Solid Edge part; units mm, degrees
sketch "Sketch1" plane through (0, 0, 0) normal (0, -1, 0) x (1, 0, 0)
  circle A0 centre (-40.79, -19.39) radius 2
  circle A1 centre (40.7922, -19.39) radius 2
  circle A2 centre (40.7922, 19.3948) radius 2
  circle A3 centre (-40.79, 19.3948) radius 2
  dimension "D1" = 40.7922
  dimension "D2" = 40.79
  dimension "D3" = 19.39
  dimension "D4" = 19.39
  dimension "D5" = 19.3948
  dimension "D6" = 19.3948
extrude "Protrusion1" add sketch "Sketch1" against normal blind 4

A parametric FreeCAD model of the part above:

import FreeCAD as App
import Part
import Sketcher

V = App.Vector

doc = App.newDocument("Part")
params = doc.addObject("Spreadsheet::Sheet", "Params")
for row, (alias, value) in enumerate([
    ("sketch1_diameter", "4 mm"),
    ("pad1_length", "4 mm"),
], start=1):
    params.set(f"A{row}", alias)
    params.set(f"B{row}", "=" + value)
    params.setAlias(f"B{row}", alias)

body = doc.addObject("PartDesign::Body", "Body")
body.AllowCompound = True

# Sketch on XZ plane
sketch1 = doc.addObject("Sketcher::SketchObject", "Sketch")
body.addObject(sketch1)
sketch1.AttachmentSupport = (doc.XZ_Plane, [""])
sketch1.MapMode = "FlatFace"
sketch1.addGeometry(Part.Circle(V(-40.79, -19.39, 0), V(0, 0, 1), 2), False)
sketch1.addGeometry(Part.Circle(V(40.7922, -19.39, 0), V(0, 0, 1), 2), False)
sketch1.addGeometry(Part.Circle(V(40.7922, 19.3948, 0), V(0, 0, 1), 2), False)
sketch1.addGeometry(Part.Circle(V(-40.79, 19.3948, 0), V(0, 0, 1), 2), False)
sketch1.addConstraint(Sketcher.Constraint("Equal", 0, 1))
sketch1.addConstraint(Sketcher.Constraint("Equal", 1, 2))
sketch1.addConstraint(Sketcher.Constraint("Equal", 2, 3))
sketch1.addConstraint(Sketcher.Constraint("Horizontal", 0, 3, 1, 3))
sketch1.addConstraint(Sketcher.Constraint("Horizontal", 2, 3, 3, 3))
sketch1.addConstraint(Sketcher.Constraint("Vertical", 1, 3, 2, 3))
sketch1.addConstraint(Sketcher.Constraint("Vertical", 0, 3, 3, 3))
sketch1.addConstraint(Sketcher.Constraint("Diameter", 0, 4.0))
sketch1.addConstraint(Sketcher.Constraint("DistanceX", 0, 3, -1, 1, 40.79))
sketch1.addConstraint(Sketcher.Constraint("DistanceY", 0, 3, -1, 1, 19.39))
sketch1.addConstraint(Sketcher.Constraint("DistanceX", -1, 1, 1, 3, 40.7922))
sketch1.addConstraint(Sketcher.Constraint("DistanceY", -1, 1, 2, 3, 19.3948))
sketch1.setExpression("Constraints[7]", "Params.sketch1_diameter")
pad1 = doc.addObject("PartDesign::Pad", "Pad")
body.addObject(pad1)
pad1.Profile = sketch1
pad1.setExpression("Length", "Params.pad1_length")
pad1.Reversed = True

doc.recompute()
